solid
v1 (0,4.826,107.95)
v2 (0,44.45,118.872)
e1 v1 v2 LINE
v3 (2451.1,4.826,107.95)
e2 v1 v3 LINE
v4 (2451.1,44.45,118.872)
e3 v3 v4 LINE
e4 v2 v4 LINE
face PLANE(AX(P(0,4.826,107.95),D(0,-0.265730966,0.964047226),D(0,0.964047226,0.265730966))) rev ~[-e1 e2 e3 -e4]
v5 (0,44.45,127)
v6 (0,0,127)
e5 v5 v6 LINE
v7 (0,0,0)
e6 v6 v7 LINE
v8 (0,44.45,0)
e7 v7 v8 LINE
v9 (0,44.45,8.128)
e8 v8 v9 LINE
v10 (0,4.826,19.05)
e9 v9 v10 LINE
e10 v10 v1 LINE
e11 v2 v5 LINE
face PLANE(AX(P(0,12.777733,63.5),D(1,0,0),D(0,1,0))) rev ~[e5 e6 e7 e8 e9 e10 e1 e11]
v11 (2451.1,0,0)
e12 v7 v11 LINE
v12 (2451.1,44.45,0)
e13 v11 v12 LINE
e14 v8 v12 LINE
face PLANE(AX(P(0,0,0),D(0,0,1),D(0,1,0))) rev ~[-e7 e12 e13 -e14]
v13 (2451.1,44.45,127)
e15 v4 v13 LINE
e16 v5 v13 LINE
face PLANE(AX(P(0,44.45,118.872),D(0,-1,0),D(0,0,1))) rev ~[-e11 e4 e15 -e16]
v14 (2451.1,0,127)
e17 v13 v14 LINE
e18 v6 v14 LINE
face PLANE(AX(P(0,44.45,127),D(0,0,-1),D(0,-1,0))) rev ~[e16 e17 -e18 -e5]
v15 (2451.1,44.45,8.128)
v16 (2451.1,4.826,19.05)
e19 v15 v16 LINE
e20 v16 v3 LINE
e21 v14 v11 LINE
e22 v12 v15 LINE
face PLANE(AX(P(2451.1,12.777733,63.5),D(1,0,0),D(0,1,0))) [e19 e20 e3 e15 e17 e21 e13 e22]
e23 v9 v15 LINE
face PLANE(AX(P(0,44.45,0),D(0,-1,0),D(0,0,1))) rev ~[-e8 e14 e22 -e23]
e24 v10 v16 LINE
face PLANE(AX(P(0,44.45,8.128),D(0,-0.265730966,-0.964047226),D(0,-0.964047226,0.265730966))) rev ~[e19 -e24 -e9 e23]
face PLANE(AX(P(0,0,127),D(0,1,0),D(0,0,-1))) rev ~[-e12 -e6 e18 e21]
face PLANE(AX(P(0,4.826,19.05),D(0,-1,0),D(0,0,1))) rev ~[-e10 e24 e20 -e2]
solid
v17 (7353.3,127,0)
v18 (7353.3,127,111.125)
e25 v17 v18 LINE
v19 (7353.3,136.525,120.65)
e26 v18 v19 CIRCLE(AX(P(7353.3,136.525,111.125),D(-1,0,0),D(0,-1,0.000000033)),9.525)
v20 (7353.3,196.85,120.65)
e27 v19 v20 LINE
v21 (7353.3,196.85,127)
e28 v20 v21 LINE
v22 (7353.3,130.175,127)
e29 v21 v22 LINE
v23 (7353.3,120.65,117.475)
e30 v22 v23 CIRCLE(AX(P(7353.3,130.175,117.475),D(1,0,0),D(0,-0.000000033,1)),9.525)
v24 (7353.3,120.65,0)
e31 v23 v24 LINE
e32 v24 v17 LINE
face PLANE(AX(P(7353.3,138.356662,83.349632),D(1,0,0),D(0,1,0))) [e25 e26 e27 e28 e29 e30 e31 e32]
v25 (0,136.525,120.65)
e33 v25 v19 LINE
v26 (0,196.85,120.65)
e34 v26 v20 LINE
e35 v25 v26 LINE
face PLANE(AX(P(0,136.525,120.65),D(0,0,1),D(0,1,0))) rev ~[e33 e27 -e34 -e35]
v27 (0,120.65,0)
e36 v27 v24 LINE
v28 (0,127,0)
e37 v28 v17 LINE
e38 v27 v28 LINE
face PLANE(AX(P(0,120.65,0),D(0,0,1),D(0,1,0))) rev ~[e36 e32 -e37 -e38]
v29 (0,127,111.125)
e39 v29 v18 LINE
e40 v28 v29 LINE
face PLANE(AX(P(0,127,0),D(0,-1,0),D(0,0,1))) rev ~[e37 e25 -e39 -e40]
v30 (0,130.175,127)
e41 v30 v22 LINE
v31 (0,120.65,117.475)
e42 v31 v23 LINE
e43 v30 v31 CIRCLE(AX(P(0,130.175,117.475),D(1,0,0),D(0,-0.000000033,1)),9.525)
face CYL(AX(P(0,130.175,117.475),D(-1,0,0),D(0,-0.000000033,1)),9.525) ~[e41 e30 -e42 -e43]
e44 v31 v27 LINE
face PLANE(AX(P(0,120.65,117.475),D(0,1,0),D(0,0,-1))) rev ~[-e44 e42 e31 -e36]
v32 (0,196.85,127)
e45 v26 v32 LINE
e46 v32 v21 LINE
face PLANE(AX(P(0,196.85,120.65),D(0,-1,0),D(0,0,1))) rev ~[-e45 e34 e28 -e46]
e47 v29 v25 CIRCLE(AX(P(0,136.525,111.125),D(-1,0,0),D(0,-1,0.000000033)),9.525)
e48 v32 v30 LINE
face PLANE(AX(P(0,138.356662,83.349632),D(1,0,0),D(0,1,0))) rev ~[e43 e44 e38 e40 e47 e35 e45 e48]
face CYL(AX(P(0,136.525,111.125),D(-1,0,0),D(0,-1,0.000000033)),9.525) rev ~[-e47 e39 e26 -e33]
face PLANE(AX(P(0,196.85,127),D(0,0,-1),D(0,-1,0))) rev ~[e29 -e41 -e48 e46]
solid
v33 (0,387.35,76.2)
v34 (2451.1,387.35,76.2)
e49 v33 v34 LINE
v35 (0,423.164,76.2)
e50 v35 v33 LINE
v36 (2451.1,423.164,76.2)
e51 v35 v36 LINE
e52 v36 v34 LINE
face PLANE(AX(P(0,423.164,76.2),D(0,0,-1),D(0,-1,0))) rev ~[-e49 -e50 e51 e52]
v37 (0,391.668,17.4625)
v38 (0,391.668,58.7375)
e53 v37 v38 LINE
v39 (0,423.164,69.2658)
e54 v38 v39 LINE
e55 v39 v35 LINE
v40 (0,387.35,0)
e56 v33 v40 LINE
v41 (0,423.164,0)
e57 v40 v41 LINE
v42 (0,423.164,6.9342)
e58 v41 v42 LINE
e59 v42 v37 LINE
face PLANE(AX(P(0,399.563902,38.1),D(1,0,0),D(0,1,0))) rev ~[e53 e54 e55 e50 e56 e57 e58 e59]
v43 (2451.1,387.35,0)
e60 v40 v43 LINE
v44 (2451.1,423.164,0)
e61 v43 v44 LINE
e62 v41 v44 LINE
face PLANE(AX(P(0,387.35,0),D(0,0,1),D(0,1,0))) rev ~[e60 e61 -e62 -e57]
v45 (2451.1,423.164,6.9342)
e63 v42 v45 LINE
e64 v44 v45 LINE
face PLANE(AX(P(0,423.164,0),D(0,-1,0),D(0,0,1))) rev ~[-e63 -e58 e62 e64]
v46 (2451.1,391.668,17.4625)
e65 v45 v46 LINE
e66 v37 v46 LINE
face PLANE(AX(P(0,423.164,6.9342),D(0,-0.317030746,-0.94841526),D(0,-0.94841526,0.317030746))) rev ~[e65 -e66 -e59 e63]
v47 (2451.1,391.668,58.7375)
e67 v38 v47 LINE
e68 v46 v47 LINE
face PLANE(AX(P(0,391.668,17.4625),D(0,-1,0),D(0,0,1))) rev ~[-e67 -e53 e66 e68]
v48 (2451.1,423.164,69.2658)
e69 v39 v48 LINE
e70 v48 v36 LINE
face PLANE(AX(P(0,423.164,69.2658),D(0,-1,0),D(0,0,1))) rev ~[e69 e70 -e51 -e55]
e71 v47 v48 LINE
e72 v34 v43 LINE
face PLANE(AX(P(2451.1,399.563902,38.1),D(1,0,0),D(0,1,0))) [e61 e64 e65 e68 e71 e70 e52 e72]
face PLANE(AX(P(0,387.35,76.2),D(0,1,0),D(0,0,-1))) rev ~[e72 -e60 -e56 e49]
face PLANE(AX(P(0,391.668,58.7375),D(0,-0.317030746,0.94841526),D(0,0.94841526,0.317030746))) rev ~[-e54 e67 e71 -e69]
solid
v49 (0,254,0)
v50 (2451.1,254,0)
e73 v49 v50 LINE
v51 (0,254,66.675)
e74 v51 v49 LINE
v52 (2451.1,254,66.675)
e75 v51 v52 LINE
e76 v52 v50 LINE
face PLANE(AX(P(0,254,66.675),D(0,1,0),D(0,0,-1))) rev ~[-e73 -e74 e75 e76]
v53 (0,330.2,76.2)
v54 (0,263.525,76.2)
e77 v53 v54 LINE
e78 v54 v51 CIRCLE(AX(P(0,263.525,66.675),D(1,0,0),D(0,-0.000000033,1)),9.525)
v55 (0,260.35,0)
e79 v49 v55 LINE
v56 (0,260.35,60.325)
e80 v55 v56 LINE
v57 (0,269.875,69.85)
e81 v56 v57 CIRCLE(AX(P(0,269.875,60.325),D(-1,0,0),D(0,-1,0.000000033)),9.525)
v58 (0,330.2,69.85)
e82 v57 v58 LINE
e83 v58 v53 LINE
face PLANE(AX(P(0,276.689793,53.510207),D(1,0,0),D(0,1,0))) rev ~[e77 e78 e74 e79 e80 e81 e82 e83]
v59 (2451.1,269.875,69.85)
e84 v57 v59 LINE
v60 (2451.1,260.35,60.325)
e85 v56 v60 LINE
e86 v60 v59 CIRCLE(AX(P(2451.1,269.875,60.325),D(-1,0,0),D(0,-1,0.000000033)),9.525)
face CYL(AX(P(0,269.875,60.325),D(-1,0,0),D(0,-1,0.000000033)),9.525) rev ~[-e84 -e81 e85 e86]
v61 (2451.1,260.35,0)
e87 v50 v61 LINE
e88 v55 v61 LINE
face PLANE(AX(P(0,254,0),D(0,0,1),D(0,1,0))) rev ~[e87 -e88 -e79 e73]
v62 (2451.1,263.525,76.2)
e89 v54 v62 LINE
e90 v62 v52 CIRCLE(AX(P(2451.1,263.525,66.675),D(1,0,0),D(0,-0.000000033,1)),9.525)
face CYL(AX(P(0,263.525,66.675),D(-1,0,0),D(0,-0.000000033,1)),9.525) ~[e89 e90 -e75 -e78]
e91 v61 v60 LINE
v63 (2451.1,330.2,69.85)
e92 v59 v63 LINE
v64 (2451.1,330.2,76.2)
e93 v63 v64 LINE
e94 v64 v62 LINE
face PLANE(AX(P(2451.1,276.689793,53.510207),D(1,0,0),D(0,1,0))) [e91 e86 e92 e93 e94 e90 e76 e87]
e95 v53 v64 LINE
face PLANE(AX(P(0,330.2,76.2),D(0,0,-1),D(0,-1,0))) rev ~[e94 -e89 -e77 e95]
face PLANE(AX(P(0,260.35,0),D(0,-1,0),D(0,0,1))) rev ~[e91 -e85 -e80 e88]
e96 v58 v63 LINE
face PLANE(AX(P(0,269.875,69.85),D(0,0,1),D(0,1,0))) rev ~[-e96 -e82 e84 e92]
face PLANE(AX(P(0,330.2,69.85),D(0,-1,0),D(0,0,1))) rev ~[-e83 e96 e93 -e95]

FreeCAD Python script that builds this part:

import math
import FreeCAD as App
import Part
import Sketcher

V = App.Vector
Q = App.Units.Quantity

doc = App.newDocument("Part")
params = doc.addObject("Spreadsheet::Sheet", "Params")
for row, (alias, value) in enumerate([
    ("sketch1_height", "5 in"),
    ("sketch1_height2", "3.5 in"),
    ("sketch1_width", "1.75 in"),
    ("sketch1_height3", "0.32 in"),
    ("pad1_length", "96.5 in"),
    ("sketch2_radius", "0.375 in"),
    ("sketch2_width", "0.25 in"),
    ("sketch2_width2", "2.375 in"),
    ("pad2_length", "289.5 in"),
    ("sketch3_radius", "0.375 in"),
    ("sketch3_width", "0.25 in"),
    ("pad3_length", "96.5 in"),
    ("sketch4_height", "3 in"),
    ("sketch4_width", "1.41 in"),
    ("sketch4_height2", "0.273 in"),
    ("sketch4_height3", "1.625 in"),
    ("pad4_length", "96.5 in"),
], start=1):
    params.set(f"A{row}", alias)
    params.set(f"B{row}", "=" + value)
    params.setAlias(f"B{row}", alias)

body = doc.addObject("PartDesign::Body", "Body")

sketch1 = body.newObject("Sketcher::SketchObject", "Sketch")
sketch1.AttachmentSupport = (doc.getObject("YZ_Plane"), [""])
sketch1.MapMode = "FlatFace"
sketch1.addGeometry([
    Part.LineSegment(V(0, 127, 0), V(0, 0, 0)),
    Part.LineSegment(V(0, 0, 0), V(44, 0, 0)),
    Part.LineSegment(V(44, 0, 0), V(44, 8, 0)),
    Part.LineSegment(V(44, 8, 0), V(5, 19, 0)),
    Part.LineSegment(V(5, 19, 0), V(5, 108, 0)),
    Part.LineSegment(V(5, 108, 0), V(44, 119, 0)),
    Part.LineSegment(V(44, 119, 0), V(44, 127, 0)),
    Part.LineSegment(V(44, 127, 0), V(0, 127, 0)),
], False)
sketch1.addConstraint([
    Sketcher.Constraint("Coincident", 0, 2, 1, 1),
    Sketcher.Constraint("Coincident", 1, 2, 2, 1),
    Sketcher.Constraint("Coincident", 2, 2, 3, 1),
    Sketcher.Constraint("Coincident", 3, 2, 4, 1),
    Sketcher.Constraint("Coincident", 4, 2, 5, 1),
    Sketcher.Constraint("Coincident", 5, 2, 6, 1),
    Sketcher.Constraint("Coincident", 6, 2, 7, 1),
    Sketcher.Constraint("Coincident", 7, 2, 0, 1),
    Sketcher.Constraint("Vertical", 0),
    Sketcher.Constraint("Horizontal", 1),
    Sketcher.Constraint("Vertical", 2),
    Sketcher.Constraint("Vertical", 4),
    Sketcher.Constraint("Vertical", 6),
    Sketcher.Constraint("Horizontal", 7),
    Sketcher.Constraint("Coincident", 0, 2, -1, 1),
    Sketcher.Constraint("Vertical", 2, 2, 5, 2),
    Sketcher.Constraint("Equal", 2, 6),
    Sketcher.Constraint("Equal", 3, 5),
    Sketcher.Constraint("DistanceY", 0, 2, 0, 1, Q("5 in")),
    Sketcher.Constraint("DistanceY", 4, 1, 4, 2, Q("3.5 in")),
    Sketcher.Constraint("DistanceX", 1, 1, 1, 2, Q("1.75 in")),
    Sketcher.Constraint("DistanceY", 2, 1, 2, 2, Q("0.32 in")),
    Sketcher.Constraint("DistanceX", -1, 1, 3, 2, Q("0.19 in")),
])
sketch1.setExpression("Constraints[18]", "Params.sketch1_height")
sketch1.setExpression("Constraints[19]", "Params.sketch1_height2")
sketch1.setExpression("Constraints[20]", "Params.sketch1_width")
sketch1.setExpression("Constraints[21]", "Params.sketch1_height3")
pad1 = body.newObject("PartDesign::Pad", "Pad")
pad1.Profile = sketch1
pad1.setExpression("Length", "Params.pad1_length")
body2 = doc.addObject("PartDesign::Body", "Body001")

sketch2 = body2.newObject("Sketcher::SketchObject", "Sketch001")
sketch2.AttachmentSupport = (doc.getObject("YZ_Plane001"), [""])
sketch2.MapMode = "FlatFace"
sketch2.addGeometry([
    Part.LineSegment(V(121, 117, 0), V(121, 0, 0)),
    Part.LineSegment(V(121, 0, 0), V(127, 0, 0)),
    Part.LineSegment(V(127, 0, 0), V(127, 111, 0)),
    Part.ArcOfCircle(Part.Circle(V(137, 111, 0), V(0, 0, 1), 10), math.radians(90), math.radians(180)),
    Part.LineSegment(V(137, 121, 0), V(197, 121, 0)),
    Part.LineSegment(V(197, 121, 0), V(197, 127, 0)),
    Part.LineSegment(V(197, 127, 0), V(130, 127, 0)),
    Part.ArcOfCircle(Part.Circle(V(130, 117, 0), V(0, 0, 1), 10), math.radians(90), math.radians(180)),
], False)
sketch2.addConstraint([
    Sketcher.Constraint("Coincident", 0, 2, 1, 1),
    Sketcher.Constraint("Coincident", 1, 2, 2, 1),
    Sketcher.Constraint("Tangent", 2, 2, 3, 2),
    Sketcher.Constraint("Tangent", 3, 1, 4, 1),
    Sketcher.Constraint("Coincident", 4, 2, 5, 1),
    Sketcher.Constraint("Coincident", 5, 2, 6, 1),
    Sketcher.Constraint("Tangent", 6, 2, 7, 1),
    Sketcher.Constraint("Tangent", 7, 2, 0, 1),
    Sketcher.Constraint("Vertical", 0),
    Sketcher.Constraint("Horizontal", 1),
    Sketcher.Constraint("Vertical", 2),
    Sketcher.Constraint("Horizontal", 4),
    Sketcher.Constraint("Vertical", 5),
    Sketcher.Constraint("Horizontal", 6),
    Sketcher.Constraint("Equal", 3, 7),
    Sketcher.Constraint("PointOnObject", 0, 2, -1),
    Sketcher.Constraint("Equal", 1, 5),
    Sketcher.Constraint("DistanceX", -1, 1, 1, 2, Q("5 in")),
    Sketcher.Constraint("DistanceY", -1, 1, 5, 2, Q("5 in")),
    Sketcher.Constraint("Radius", 3, Q("0.375 in")),
    Sketcher.Constraint("DistanceX", 1, 1, 1, 2, Q("0.25 in")),
    Sketcher.Constraint("DistanceX", 4, 1, 4, 2, Q("2.375 in")),
])
sketch2.setExpression("Constraints[19]", "Params.sketch2_radius")
sketch2.setExpression("Constraints[20]", "Params.sketch2_width")
sketch2.setExpression("Constraints[21]", "Params.sketch2_width2")
pad2 = body2.newObject("PartDesign::Pad", "Pad001")
pad2.Profile = sketch2
pad2.setExpression("Length", "Params.pad2_length")
body3 = doc.addObject("PartDesign::Body", "Body002")

sketch3 = body3.newObject("Sketcher::SketchObject", "Sketch002")
sketch3.AttachmentSupport = (doc.getObject("YZ_Plane002"), [""])
sketch3.MapMode = "FlatFace"
sketch3.addGeometry([
    Part.LineSegment(V(254, 67, 0), V(254, 0, 0)),
    Part.LineSegment(V(254, 0, 0), V(260, 0, 0)),
    Part.LineSegment(V(260, 0, 0), V(260, 60, 0)),
    Part.ArcOfCircle(Part.Circle(V(270, 60, 0), V(0, 0, 1), 10), math.radians(90), math.radians(180)),
    Part.LineSegment(V(270, 70, 0), V(330, 70, 0)),
    Part.LineSegment(V(330, 70, 0), V(330, 76, 0)),
    Part.LineSegment(V(330, 76, 0), V(264, 76, 0)),
    Part.ArcOfCircle(Part.Circle(V(264, 67, 0), V(0, 0, 1), 10), math.radians(90), math.radians(180)),
], False)
sketch3.addConstraint([
    Sketcher.Constraint("Coincident", 0, 2, 1, 1),
    Sketcher.Constraint("Coincident", 1, 2, 2, 1),
    Sketcher.Constraint("Tangent", 2, 2, 3, 2),
    Sketcher.Constraint("Tangent", 3, 1, 4, 1),
    Sketcher.Constraint("Coincident", 4, 2, 5, 1),
    Sketcher.Constraint("Coincident", 5, 2, 6, 1),
    Sketcher.Constraint("Tangent", 6, 2, 7, 1),
    Sketcher.Constraint("Tangent", 7, 2, 0, 1),
    Sketcher.Constraint("Vertical", 0),
    Sketcher.Constraint("Horizontal", 1),
    Sketcher.Constraint("Vertical", 2),
    Sketcher.Constraint("Horizontal", 4),
    Sketcher.Constraint("Vertical", 5),
    Sketcher.Constraint("Horizontal", 6),
    Sketcher.Constraint("Equal", 3, 7),
    Sketcher.Constraint("PointOnObject", 0, 2, -1),
    Sketcher.Constraint("Equal", 6, 0),
    Sketcher.Constraint("Equal", 4, 2),
    Sketcher.Constraint("DistanceX", -1, 1, 0, 2, Q("10 in")),
    Sketcher.Constraint("DistanceX", -1, 1, 4, 2, Q("13 in")),
    Sketcher.Constraint("Radius", 3, Q("0.375 in")),
    Sketcher.Constraint("DistanceX", 1, 1, 1, 2, Q("0.25 in")),
])
sketch3.setExpression("Constraints[20]", "Params.sketch3_radius")
sketch3.setExpression("Constraints[21]", "Params.sketch3_width")
pad3 = body3.newObject("PartDesign::Pad", "Pad002")
pad3.Profile = sketch3
pad3.setExpression("Length", "Params.pad3_length")
body4 = doc.addObject("PartDesign::Body", "Body003")

sketch4 = body4.newObject("Sketcher::SketchObject", "Sketch003")
sketch4.AttachmentSupport = (doc.getObject("YZ_Plane003"), [""])
sketch4.MapMode = "FlatFace"
sketch4.addGeometry([
    Part.LineSegment(V(387, 76, 0), V(387, 0, 0)),
    Part.LineSegment(V(387, 0, 0), V(423, 0, 0)),
    Part.LineSegment(V(423, 0, 0), V(423, 7, 0)),
    Part.LineSegment(V(423, 7, 0), V(392, 17, 0)),
    Part.LineSegment(V(392, 17, 0), V(392, 59, 0)),
    Part.LineSegment(V(392, 59, 0), V(423, 69, 0)),
    Part.LineSegment(V(423, 69, 0), V(423, 76, 0)),
    Part.LineSegment(V(423, 76, 0), V(387, 76, 0)),
], False)
sketch4.addConstraint([
    Sketcher.Constraint("Coincident", 0, 2, 1, 1),
    Sketcher.Constraint("Coincident", 1, 2, 2, 1),
    Sketcher.Constraint("Coincident", 2, 2, 3, 1),
    Sketcher.Constraint("Coincident", 3, 2, 4, 1),
    Sketcher.Constraint("Coincident", 4, 2, 5, 1),
    Sketcher.Constraint("Coincident", 5, 2, 6, 1),
    Sketcher.Constraint("Coincident", 6, 2, 7, 1),
    Sketcher.Constraint("Coincident", 7, 2, 0, 1),
    Sketcher.Constraint("Vertical", 0),
    Sketcher.Constraint("Horizontal", 1),
    Sketcher.Constraint("Vertical", 2),
    Sketcher.Constraint("Vertical", 4),
    Sketcher.Constraint("Vertical", 6),
    Sketcher.Constraint("Horizontal", 7),
    Sketcher.Constraint("PointOnObject", 0, 2, -1),
    Sketcher.Constraint("Vertical", 2, 2, 5, 2),
    Sketcher.Constraint("Equal", 2, 6),
    Sketcher.Constraint("Equal", 3, 5),
    Sketcher.Constraint("DistanceY", 0, 2, 0, 1, Q("3 in")),
    Sketcher.Constraint("DistanceX", 1, 1, 1, 2, Q("1.41 in")),
    Sketcher.Constraint("DistanceY", 2, 1, 2, 2, Q("0.273 in")),
    Sketcher.Constraint("DistanceY", 4, 1, 4, 2, Q("1.625 in")),
    Sketcher.Constraint("DistanceX", -1, 1, 0, 2, Q("15.25 in")),
    Sketcher.Constraint("DistanceX", -1, 1, 3, 2, Q("15.42 in")),
])
sketch4.setExpression("Constraints[18]", "Params.sketch4_height")
sketch4.setExpression("Constraints[19]", "Params.sketch4_width")
sketch4.setExpression("Constraints[20]", "Params.sketch4_height2")
sketch4.setExpression("Constraints[21]", "Params.sketch4_height3")
pad4 = body4.newObject("PartDesign::Pad", "Pad003")
pad4.Profile = sketch4
pad4.setExpression("Length", "Params.pad4_length")

doc.recompute()
